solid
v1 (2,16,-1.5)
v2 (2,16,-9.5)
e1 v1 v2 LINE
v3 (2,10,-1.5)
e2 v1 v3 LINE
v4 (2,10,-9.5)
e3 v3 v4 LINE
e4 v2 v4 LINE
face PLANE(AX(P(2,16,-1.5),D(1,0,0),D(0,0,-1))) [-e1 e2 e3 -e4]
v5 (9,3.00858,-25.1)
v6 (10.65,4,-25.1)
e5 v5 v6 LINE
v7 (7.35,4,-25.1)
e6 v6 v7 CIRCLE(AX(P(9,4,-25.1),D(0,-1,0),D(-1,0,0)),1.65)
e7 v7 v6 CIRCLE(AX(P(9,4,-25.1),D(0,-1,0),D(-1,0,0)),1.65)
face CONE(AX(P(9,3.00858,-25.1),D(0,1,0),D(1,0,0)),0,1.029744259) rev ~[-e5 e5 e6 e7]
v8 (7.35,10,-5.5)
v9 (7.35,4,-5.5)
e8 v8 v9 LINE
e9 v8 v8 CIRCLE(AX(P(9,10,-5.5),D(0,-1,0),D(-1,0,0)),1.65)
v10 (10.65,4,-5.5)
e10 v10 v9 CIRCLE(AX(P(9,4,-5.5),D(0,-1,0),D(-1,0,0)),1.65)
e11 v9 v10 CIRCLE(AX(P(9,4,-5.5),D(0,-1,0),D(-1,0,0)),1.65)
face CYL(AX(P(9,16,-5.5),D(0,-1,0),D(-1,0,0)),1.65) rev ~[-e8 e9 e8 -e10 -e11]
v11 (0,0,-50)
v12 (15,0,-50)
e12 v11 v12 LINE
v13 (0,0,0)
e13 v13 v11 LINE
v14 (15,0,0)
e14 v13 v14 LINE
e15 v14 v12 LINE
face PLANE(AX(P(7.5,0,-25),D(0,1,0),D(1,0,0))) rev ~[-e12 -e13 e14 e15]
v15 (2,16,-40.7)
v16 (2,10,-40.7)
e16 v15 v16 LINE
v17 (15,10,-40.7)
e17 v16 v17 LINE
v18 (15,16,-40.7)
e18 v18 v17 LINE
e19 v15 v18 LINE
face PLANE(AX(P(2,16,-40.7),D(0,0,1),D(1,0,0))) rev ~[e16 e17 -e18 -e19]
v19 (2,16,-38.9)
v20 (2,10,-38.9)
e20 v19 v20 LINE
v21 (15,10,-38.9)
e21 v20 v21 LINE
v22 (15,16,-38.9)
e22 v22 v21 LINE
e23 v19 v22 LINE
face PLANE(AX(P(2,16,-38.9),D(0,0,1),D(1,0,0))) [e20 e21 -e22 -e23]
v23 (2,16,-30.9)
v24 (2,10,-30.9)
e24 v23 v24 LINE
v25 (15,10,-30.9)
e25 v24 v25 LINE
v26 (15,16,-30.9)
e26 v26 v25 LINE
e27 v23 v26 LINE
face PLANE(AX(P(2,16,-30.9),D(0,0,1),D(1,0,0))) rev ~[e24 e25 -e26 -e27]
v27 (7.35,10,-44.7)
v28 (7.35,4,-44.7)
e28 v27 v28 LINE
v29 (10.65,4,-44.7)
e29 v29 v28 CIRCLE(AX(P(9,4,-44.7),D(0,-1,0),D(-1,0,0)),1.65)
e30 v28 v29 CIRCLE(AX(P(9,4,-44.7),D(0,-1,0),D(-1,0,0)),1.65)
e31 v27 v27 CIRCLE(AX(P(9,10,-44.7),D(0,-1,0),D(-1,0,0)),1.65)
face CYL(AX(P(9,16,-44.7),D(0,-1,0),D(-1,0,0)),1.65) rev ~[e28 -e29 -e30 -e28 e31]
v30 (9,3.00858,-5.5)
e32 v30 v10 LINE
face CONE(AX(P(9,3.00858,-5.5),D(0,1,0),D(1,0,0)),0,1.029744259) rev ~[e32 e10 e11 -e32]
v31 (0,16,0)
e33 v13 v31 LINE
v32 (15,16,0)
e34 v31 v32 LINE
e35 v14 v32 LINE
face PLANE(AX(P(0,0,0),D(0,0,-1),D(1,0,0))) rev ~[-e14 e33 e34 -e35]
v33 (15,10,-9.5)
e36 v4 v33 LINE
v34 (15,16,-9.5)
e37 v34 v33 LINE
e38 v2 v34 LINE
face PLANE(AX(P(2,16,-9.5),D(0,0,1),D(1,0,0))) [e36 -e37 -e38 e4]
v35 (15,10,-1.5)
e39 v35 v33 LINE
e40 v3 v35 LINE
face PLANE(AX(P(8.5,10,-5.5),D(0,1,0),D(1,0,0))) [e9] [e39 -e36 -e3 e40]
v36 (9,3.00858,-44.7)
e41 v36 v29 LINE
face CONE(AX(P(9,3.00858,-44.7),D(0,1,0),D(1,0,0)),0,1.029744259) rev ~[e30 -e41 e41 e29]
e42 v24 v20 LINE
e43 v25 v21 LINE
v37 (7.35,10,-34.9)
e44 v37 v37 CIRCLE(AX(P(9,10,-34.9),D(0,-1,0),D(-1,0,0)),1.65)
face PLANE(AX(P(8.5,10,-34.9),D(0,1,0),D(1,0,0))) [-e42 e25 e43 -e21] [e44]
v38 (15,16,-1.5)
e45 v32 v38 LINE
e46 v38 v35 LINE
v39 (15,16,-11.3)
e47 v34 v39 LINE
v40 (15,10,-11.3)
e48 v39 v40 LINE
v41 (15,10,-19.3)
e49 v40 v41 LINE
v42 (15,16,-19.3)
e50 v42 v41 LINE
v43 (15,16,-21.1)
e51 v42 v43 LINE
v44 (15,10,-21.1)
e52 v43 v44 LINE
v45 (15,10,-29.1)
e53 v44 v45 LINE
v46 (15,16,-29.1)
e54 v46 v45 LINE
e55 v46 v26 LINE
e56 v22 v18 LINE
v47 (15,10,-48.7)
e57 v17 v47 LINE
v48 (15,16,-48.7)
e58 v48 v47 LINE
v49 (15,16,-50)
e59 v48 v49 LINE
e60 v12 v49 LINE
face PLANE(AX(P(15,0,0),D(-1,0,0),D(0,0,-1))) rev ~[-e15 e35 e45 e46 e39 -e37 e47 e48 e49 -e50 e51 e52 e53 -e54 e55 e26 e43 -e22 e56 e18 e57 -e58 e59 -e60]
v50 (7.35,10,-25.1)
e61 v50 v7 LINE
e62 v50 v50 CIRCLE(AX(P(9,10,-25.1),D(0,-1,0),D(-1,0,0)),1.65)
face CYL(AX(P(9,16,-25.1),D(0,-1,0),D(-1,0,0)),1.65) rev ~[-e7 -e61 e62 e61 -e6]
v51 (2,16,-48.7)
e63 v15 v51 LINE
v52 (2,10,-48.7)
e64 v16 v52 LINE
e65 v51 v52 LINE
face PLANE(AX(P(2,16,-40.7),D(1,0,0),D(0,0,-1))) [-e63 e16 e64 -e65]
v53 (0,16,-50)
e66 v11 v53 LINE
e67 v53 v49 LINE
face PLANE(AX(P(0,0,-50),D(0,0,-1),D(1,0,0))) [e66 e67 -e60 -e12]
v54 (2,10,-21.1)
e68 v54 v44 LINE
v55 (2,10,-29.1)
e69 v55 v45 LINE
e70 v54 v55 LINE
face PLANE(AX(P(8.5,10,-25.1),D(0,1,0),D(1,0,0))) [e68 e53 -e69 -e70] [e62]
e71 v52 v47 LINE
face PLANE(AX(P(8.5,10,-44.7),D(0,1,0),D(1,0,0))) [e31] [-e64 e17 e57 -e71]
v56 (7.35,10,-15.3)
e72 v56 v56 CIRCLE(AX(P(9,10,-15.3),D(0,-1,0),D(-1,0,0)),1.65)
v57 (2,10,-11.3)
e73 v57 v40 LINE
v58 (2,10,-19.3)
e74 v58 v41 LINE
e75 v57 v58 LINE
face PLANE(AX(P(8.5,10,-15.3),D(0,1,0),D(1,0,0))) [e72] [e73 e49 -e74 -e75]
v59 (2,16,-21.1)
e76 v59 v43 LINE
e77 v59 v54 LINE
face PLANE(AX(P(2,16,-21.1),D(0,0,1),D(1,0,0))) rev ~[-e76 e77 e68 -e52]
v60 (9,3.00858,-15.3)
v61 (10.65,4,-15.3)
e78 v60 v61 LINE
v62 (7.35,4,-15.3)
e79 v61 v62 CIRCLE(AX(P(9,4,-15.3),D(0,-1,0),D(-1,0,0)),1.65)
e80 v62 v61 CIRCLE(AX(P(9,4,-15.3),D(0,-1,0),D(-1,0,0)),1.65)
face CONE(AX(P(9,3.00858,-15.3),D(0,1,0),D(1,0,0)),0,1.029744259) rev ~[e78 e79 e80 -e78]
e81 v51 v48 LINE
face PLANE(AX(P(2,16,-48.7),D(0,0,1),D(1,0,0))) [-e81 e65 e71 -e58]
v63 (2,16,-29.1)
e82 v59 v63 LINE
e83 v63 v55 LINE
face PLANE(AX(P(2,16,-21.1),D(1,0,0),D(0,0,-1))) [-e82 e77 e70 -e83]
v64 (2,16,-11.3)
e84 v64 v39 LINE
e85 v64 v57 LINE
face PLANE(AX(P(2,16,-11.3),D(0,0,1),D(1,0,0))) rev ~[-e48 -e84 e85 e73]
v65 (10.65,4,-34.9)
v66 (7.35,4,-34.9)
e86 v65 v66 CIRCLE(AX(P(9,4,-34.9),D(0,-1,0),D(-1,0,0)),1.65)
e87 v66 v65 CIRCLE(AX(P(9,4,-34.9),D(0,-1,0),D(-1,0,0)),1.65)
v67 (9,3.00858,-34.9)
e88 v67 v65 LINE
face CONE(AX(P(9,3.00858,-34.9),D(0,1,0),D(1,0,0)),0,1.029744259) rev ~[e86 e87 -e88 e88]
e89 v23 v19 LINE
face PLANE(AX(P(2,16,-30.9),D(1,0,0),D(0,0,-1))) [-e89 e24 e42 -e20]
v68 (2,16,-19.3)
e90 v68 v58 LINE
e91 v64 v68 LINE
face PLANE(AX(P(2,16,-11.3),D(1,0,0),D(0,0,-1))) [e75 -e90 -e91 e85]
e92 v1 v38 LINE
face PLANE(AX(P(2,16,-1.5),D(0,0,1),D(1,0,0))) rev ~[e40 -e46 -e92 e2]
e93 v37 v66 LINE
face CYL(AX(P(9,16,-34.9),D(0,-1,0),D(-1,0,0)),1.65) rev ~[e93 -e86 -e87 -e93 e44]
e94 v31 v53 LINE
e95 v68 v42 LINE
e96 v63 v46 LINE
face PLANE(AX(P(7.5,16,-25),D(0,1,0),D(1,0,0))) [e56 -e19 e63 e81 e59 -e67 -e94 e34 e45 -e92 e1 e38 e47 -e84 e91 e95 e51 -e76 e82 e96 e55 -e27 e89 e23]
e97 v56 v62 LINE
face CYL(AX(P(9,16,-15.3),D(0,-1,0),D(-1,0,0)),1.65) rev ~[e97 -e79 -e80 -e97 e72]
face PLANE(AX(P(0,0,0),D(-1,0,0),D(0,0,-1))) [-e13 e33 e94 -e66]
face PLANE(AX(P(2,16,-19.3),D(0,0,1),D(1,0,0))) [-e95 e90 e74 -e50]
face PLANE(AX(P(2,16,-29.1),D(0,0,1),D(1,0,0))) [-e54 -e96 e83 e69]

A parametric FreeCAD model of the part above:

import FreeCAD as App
import Part
import Sketcher

V = App.Vector
Q = App.Units.Quantity

doc = App.newDocument("Part")
body = doc.addObject("PartDesign::Body", "Body")

# Sketch on XZ plane
sketch1 = doc.addObject("Sketcher::SketchObject", "Sketch")
body.addObject(sketch1)
sketch1.AttachmentSupport = (doc.XZ_Plane, [""])
sketch1.MapMode = "FlatFace"
sketch1.addGeometry([
    Part.LineSegment(V(0, -50, 0), V(0, 0, 0)),
    Part.LineSegment(V(0, 0, 0), V(15, 0, 0)),
    Part.LineSegment(V(15, 0, 0), V(15, -50, 0)),
    Part.LineSegment(V(15, -50, 0), V(0, -50, 0)),
], False)
sketch1.addConstraint([
    Sketcher.Constraint("Coincident", 0, 2, 1, 1),
    Sketcher.Constraint("Coincident", 1, 2, 2, 1),
    Sketcher.Constraint("Coincident", 2, 2, 3, 1),
    Sketcher.Constraint("Coincident", 3, 2, 0, 1),
    Sketcher.Constraint("Vertical", 0),
    Sketcher.Constraint("Horizontal", 1),
    Sketcher.Constraint("Vertical", 2),
    Sketcher.Constraint("Horizontal", 3),
    Sketcher.Constraint("Coincident", 0, 2, -1, 1),
    Sketcher.Constraint("DistanceX", 1, 1, 1, 2, Q("15 mm")),
    Sketcher.Constraint("DistanceY", 0, 1, 0, 2, Q("50 mm")),
])
pad1 = doc.addObject("PartDesign::Pad", "Pad")
body.addObject(pad1)
pad1.Profile = sketch1
pad1.Length = 16
pad1.Reversed = True

# Sketch on XZ plane
sketch2 = doc.addObject("Sketcher::SketchObject", "Sketch001")
body.addObject(sketch2)
sketch2.AttachmentSupport = (doc.XZ_Plane, [""])
sketch2.MapMode = "FlatFace"
sketch2.AttachmentOffset = App.Placement(V(0, 0, -16), App.Rotation())
sketch2.addGeometry([
    Part.LineSegment(V(2, -10, 0), V(2, -2, 0)),  # 0
    Part.LineSegment(V(2, -2, 0), V(15, -2, 0)),  # 1
    Part.LineSegment(V(15, -2, 0), V(15, -10, 0)),  # 2
    Part.LineSegment(V(15, -10, 0), V(2, -10, 0)),  # 3
    Part.LineSegment(V(2, -19, 0), V(2, -11, 0)),  # 4
    Part.LineSegment(V(2, -11, 0), V(15, -11, 0)),  # 5
    Part.LineSegment(V(15, -11, 0), V(15, -19, 0)),  # 6
    Part.LineSegment(V(15, -19, 0), V(2, -19, 0)),  # 7
    Part.LineSegment(V(2, -29, 0), V(2, -21, 0)),  # 8
    Part.LineSegment(V(2, -21, 0), V(15, -21, 0)),  # 9
    Part.LineSegment(V(15, -21, 0), V(15, -29, 0)),  # 10
    Part.LineSegment(V(15, -29, 0), V(2, -29, 0)),  # 11
    Part.LineSegment(V(2, -39, 0), V(2, -31, 0)),  # 12
    Part.LineSegment(V(2, -31, 0), V(15, -31, 0)),  # 13
    Part.LineSegment(V(15, -31, 0), V(15, -39, 0)),  # 14
    Part.LineSegment(V(15, -39, 0), V(2, -39, 0)),  # 15
    Part.LineSegment(V(2, -49, 0), V(2, -41, 0)),  # 16
    Part.LineSegment(V(2, -41, 0), V(15, -41, 0)),  # 17
    Part.LineSegment(V(15, -41, 0), V(15, -49, 0)),  # 18
    Part.LineSegment(V(15, -49, 0), V(2, -49, 0)),  # 19
], False)
sketch2.addConstraint([
    Sketcher.Constraint("Coincident", 0, 2, 1, 1),
    Sketcher.Constraint("Coincident", 1, 2, 2, 1),
    Sketcher.Constraint("Coincident", 2, 2, 3, 1),
    Sketcher.Constraint("Coincident", 3, 2, 0, 1),
    Sketcher.Constraint("Coincident", 4, 2, 5, 1),
    Sketcher.Constraint("Coincident", 5, 2, 6, 1),
    Sketcher.Constraint("Coincident", 6, 2, 7, 1),
    Sketcher.Constraint("Coincident", 7, 2, 4, 1),
    Sketcher.Constraint("Coincident", 8, 2, 9, 1),
    Sketcher.Constraint("Coincident", 9, 2, 10, 1),
    Sketcher.Constraint("Coincident", 10, 2, 11, 1),
    Sketcher.Constraint("Coincident", 11, 2, 8, 1),
    Sketcher.Constraint("Coincident", 12, 2, 13, 1),
    Sketcher.Constraint("Coincident", 13, 2, 14, 1),
    Sketcher.Constraint("Coincident", 14, 2, 15, 1),
    Sketcher.Constraint("Coincident", 15, 2, 12, 1),
    Sketcher.Constraint("Coincident", 16, 2, 17, 1),
    Sketcher.Constraint("Coincident", 17, 2, 18, 1),
    Sketcher.Constraint("Coincident", 18, 2, 19, 1),
    Sketcher.Constraint("Coincident", 19, 2, 16, 1),
    Sketcher.Constraint("Vertical", 0),
    Sketcher.Constraint("Horizontal", 1),
    Sketcher.Constraint("Vertical", 2),
    Sketcher.Constraint("Horizontal", 3),
    Sketcher.Constraint("Vertical", 4),
    Sketcher.Constraint("Horizontal", 5),
    Sketcher.Constraint("Vertical", 6),
    Sketcher.Constraint("Horizontal", 7),
    Sketcher.Constraint("Vertical", 8),
    Sketcher.Constraint("Horizontal", 9),
    Sketcher.Constraint("Vertical", 10),
    Sketcher.Constraint("Horizontal", 11),
    Sketcher.Constraint("Vertical", 12),
    Sketcher.Constraint("Horizontal", 13),
    Sketcher.Constraint("Vertical", 14),
    Sketcher.Constraint("Horizontal", 15),
    Sketcher.Constraint("Vertical", 16),
    Sketcher.Constraint("Horizontal", 17),
    Sketcher.Constraint("Vertical", 18),
    Sketcher.Constraint("Horizontal", 19),
    Sketcher.Constraint("Vertical", 3, 2, 4, 2),
    Sketcher.Constraint("Vertical", 2, 2, 5, 2),
    Sketcher.Constraint("Vertical", 7, 2, 8, 2),
    Sketcher.Constraint("Vertical", 6, 2, 9, 2),
    Sketcher.Constraint("Vertical", 11, 2, 12, 2),
    Sketcher.Constraint("Vertical", 10, 2, 13, 2),
    Sketcher.Constraint("Vertical", 15, 2, 16, 2),
    Sketcher.Constraint("Vertical", 14, 2, 17, 2),
    Sketcher.Constraint("Equal", 2, 4),
    Sketcher.Constraint("Equal", 6, 8),
    Sketcher.Constraint("Equal", 10, 12),
    Sketcher.Constraint("Equal", 14, 16),
    Sketcher.Constraint("DistanceX", 1, 1, 1, 2, Q("13 mm")),
    Sketcher.Constraint("DistanceY", 0, 1, 0, 2, Q("8 mm")),
    Sketcher.Constraint("DistanceX", -1, 1, 0, 2, Q("2 mm")),
    Sketcher.Constraint("DistanceY", 0, 2, -1, 1, Q("1.5 mm")),
    Sketcher.Constraint("DistanceY", 4, 2, -1, 1, Q("11.3 mm")),
    Sketcher.Constraint("DistanceY", 8, 2, -1, 1, Q("21.1 mm")),
    Sketcher.Constraint("DistanceY", 12, 2, -1, 1, Q("30.9 mm")),
    Sketcher.Constraint("DistanceY", 16, 2, -1, 1, Q("40.7 mm")),
])
pocket1 = doc.addObject("PartDesign::Pocket", "Pocket")
body.addObject(pocket1)
pocket1.Profile = sketch2
pocket1.Length = 6
pocket1.Reversed = True

# Sketch on XZ plane
sketch3 = doc.addObject("Sketcher::SketchObject", "Sketch002")
body.addObject(sketch3)
sketch3.AttachmentSupport = (doc.XZ_Plane, [""])
sketch3.MapMode = "FlatFace"
sketch3.AttachmentOffset = App.Placement(V(0, 0, -10), App.Rotation())
sketch3.addGeometry([
    Part.Circle(V(9, -5.5, 0), V(0, 0, 1), 1.6),  # 0
    Part.Circle(V(9, -15.3, 0), V(0, 0, 1), 1.6),  # 1
    Part.Circle(V(9, -25.1, 0), V(0, 0, 1), 1.6),  # 2
    Part.Circle(V(9, -34.9, 0), V(0, 0, 1), 1.6),  # 3
    Part.Circle(V(9, -44.7, 0), V(0, 0, 1), 1.6),  # 4
], False)
sketch3.addConstraint([
    Sketcher.Constraint("Equal", 0, 1),
    Sketcher.Constraint("Equal", 1, 2),
    Sketcher.Constraint("Equal", 2, 3),
    Sketcher.Constraint("Equal", 3, 4),
    Sketcher.Constraint("Vertical", 0, 3, 1, 3),
    Sketcher.Constraint("Vertical", 1, 3, 2, 3),
    Sketcher.Constraint("Vertical", 2, 3, 3, 3),
    Sketcher.Constraint("Vertical", 3, 3, 4, 3),
    Sketcher.Constraint("Diameter", 0, Q("3.3 mm")),
    Sketcher.Constraint("DistanceX", -1, 1, 0, 3, Q("9 mm")),
    Sketcher.Constraint("DistanceY", 0, 3, -1, 1, Q("5.5 mm")),
    Sketcher.Constraint("DistanceY", 1, 3, -1, 1, Q("15.3 mm")),
    Sketcher.Constraint("DistanceY", 2, 3, -1, 1, Q("25.1 mm")),
    Sketcher.Constraint("DistanceY", 3, 3, -1, 1, Q("34.9 mm")),
    Sketcher.Constraint("DistanceY", 4, 3, -1, 1, Q("44.7 mm")),
])
doc.recompute()
hole = doc.addObject("PartDesign::Hole", "Hole")
body.addObject(hole)
hole.Profile = sketch3
hole.ThreadType = "None"
hole.Diameter = 3.3
hole.DepthType = "Dimension"
hole.Depth = 6
hole.DrillPoint = "Angled"
hole.DrillPointAngle = 118
hole.Reversed = True

doc.recompute()
